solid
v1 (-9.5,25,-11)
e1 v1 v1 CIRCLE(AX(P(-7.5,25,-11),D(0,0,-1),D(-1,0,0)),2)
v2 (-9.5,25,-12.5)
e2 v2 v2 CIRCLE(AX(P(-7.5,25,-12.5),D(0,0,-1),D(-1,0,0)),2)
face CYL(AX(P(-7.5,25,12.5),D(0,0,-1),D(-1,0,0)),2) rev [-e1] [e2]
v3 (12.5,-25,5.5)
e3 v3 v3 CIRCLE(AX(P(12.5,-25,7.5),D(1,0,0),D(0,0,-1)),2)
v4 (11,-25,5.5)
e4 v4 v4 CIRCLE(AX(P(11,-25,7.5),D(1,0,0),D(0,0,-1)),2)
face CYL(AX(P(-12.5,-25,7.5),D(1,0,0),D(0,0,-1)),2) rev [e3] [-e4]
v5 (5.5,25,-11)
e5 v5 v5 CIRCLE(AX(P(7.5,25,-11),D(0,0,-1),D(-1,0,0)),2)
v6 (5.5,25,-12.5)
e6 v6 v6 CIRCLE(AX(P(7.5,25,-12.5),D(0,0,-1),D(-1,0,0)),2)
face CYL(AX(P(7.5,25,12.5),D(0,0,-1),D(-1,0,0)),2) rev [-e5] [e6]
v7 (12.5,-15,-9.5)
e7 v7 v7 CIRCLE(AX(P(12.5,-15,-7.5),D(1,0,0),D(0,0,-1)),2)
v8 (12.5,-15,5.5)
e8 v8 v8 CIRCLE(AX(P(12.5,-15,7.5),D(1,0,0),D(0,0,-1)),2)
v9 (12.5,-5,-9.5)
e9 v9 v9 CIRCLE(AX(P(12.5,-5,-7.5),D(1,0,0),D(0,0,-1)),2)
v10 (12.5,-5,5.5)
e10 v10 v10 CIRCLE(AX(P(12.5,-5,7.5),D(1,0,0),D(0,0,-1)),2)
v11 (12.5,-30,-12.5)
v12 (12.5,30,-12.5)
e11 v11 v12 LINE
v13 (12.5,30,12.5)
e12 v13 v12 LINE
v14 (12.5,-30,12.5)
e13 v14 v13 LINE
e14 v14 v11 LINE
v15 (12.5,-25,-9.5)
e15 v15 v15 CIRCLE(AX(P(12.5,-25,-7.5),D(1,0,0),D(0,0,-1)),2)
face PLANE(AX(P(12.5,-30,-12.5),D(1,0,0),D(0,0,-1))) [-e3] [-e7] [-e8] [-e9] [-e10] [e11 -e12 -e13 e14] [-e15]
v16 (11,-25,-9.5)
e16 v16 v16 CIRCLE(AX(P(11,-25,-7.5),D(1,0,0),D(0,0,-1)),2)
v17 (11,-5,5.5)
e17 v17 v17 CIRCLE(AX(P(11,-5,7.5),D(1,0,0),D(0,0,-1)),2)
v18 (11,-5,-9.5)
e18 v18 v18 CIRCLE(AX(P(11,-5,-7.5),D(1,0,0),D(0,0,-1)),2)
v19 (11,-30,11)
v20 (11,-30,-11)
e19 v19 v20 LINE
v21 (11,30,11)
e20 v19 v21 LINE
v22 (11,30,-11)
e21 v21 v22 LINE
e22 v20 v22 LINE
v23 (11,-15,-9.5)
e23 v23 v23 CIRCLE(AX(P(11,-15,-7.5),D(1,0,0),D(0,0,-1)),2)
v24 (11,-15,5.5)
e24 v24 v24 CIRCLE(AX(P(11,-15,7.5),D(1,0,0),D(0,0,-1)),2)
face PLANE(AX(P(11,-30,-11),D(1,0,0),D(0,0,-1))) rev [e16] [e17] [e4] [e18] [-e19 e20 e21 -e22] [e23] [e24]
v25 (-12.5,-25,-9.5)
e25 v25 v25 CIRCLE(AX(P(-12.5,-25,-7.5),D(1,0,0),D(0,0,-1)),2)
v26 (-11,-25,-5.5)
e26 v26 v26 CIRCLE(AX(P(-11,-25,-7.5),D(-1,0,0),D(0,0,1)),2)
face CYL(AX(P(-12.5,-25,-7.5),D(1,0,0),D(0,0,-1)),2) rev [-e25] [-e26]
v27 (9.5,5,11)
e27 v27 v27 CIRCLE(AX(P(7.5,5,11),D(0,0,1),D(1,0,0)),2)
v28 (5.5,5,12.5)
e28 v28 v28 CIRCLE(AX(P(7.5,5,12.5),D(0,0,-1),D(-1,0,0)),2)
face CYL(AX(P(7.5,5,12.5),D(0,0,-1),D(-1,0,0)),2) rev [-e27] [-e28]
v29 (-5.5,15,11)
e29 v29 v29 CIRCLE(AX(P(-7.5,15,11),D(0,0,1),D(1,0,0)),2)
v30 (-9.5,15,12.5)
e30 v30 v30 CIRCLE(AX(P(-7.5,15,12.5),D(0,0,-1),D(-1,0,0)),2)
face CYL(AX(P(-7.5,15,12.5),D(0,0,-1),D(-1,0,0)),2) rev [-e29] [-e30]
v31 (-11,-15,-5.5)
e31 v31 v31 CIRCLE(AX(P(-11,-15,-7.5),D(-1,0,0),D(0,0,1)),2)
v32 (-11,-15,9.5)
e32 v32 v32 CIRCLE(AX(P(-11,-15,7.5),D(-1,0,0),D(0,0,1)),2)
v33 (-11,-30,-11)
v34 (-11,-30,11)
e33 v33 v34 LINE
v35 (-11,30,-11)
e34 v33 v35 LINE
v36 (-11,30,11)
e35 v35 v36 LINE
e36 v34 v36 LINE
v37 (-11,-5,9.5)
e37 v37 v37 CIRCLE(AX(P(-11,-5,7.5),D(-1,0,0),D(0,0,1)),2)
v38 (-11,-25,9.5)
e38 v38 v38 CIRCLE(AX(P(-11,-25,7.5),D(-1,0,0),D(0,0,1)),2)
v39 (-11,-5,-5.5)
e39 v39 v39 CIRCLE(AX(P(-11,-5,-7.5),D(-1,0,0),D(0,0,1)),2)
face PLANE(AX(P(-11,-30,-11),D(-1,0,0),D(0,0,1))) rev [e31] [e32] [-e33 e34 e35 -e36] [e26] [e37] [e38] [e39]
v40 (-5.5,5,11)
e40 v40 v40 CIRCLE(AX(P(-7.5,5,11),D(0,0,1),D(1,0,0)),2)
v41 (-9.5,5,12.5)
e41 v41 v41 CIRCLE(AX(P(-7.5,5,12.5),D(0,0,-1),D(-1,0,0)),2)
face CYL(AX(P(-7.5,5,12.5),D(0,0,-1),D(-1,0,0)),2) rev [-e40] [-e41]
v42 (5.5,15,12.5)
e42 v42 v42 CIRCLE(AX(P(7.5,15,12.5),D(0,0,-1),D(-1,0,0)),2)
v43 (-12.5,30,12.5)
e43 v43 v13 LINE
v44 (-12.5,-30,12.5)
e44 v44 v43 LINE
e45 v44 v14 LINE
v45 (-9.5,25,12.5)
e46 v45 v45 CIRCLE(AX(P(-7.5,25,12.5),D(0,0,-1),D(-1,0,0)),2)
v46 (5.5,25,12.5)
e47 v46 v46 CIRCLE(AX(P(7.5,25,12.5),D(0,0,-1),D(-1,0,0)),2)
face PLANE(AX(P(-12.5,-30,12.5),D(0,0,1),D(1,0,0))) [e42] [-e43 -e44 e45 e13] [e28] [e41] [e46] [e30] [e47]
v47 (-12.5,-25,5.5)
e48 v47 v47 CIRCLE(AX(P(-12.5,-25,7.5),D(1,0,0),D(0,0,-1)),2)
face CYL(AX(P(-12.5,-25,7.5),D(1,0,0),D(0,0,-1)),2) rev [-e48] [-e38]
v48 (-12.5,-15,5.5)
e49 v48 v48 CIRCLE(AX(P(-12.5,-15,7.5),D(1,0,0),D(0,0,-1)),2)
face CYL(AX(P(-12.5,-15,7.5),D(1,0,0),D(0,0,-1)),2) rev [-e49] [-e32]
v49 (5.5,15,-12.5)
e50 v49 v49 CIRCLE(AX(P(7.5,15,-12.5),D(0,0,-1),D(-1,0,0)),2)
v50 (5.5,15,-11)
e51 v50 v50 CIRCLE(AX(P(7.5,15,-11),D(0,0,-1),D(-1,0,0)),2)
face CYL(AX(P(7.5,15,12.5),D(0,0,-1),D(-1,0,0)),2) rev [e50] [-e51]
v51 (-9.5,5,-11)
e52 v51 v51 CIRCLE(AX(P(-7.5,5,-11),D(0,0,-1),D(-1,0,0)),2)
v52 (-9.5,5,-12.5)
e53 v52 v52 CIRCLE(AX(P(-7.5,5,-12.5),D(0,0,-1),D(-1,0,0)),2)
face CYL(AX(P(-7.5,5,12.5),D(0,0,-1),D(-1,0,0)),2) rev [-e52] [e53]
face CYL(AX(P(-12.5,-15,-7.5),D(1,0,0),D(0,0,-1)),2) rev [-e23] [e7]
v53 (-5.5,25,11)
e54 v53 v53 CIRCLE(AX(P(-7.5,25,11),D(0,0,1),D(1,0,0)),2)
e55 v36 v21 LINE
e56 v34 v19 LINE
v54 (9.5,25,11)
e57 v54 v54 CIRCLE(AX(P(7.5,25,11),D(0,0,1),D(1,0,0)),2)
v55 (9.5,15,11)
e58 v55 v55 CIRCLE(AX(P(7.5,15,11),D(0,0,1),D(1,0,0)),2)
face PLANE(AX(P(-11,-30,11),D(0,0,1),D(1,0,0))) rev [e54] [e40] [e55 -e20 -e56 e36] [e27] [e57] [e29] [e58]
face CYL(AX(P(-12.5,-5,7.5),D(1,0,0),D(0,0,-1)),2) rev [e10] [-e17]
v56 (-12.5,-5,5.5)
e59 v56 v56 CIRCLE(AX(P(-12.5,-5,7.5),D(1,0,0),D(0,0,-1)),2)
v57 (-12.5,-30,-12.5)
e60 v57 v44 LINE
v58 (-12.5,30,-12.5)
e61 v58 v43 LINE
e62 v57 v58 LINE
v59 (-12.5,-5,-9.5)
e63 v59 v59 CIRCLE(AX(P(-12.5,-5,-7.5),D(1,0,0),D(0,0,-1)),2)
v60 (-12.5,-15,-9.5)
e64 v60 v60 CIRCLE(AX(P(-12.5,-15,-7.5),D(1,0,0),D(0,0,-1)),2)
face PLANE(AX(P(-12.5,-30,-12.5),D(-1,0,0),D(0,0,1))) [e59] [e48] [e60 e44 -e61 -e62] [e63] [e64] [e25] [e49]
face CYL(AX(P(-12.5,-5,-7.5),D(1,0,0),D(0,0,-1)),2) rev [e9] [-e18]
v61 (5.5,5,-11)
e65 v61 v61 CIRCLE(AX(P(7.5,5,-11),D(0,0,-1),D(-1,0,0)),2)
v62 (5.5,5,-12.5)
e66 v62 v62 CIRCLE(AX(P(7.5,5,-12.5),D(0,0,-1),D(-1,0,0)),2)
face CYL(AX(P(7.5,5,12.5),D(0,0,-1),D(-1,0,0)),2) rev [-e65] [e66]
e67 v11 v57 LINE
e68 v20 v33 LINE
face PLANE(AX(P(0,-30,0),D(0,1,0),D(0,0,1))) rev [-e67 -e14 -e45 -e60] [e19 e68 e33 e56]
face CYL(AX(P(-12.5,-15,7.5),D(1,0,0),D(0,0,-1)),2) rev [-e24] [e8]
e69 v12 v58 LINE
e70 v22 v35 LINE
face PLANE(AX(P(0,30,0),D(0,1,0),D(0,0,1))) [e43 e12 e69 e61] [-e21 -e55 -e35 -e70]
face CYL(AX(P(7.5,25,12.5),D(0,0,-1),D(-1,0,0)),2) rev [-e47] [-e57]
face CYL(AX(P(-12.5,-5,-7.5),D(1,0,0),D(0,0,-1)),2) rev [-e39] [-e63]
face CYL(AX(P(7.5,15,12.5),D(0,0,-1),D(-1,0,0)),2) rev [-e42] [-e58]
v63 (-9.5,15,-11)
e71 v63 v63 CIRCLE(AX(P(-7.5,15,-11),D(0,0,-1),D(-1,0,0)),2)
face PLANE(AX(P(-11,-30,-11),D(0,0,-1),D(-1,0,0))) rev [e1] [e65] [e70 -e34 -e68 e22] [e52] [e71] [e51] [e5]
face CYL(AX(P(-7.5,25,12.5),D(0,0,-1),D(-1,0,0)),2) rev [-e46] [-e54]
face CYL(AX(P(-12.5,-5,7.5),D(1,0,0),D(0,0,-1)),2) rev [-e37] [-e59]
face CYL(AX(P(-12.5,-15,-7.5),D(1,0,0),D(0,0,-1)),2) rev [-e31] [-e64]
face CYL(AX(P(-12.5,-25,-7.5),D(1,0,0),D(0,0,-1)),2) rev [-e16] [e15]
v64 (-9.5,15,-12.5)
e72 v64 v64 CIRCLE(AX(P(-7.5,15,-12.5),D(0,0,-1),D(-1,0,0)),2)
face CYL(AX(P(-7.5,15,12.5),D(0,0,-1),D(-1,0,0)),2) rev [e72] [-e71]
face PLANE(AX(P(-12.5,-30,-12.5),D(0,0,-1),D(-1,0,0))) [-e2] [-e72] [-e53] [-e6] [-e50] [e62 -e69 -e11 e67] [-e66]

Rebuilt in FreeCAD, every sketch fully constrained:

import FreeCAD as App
import Part
import Sketcher

V = App.Vector
Q = App.Units.Quantity


def add_polygon(sketch, points):
    """Adds a closed chain of lines whose ends are joined by coincident constraints."""
    first, n = sketch.GeometryCount, len(points)
    for a, b in zip(points, points[1:] + points[:1]):
        sketch.addGeometry(Part.LineSegment(App.Vector(*a, 0), App.Vector(*b, 0)), False)
    for i in range(n):
        sketch.addConstraint(Sketcher.Constraint("Coincident", first + i, 2, first + (i + 1) % n, 1))

doc = App.newDocument("Part")
body = doc.addObject("PartDesign::Body", "Body")

sketch1 = doc.addObject("Sketcher::SketchObject", "Sketch")
body.addObject(sketch1)
sketch1.AttachmentSupport = (doc.XZ_Plane, [""])
sketch1.MapMode = "FlatFace"
add_polygon(sketch1, [(-12, -12), (-12, 12), (12, 12), (12, -12)])
add_polygon(sketch1, [(11, 11), (-11, 11), (-11, -11), (11, -11)])
sketch1.addConstraint(Sketcher.Constraint("Vertical", 0))
sketch1.addConstraint(Sketcher.Constraint("Horizontal", 1))
sketch1.addConstraint(Sketcher.Constraint("Vertical", 2))
sketch1.addConstraint(Sketcher.Constraint("Horizontal", 3))
sketch1.addConstraint(Sketcher.Constraint("Horizontal", 4))
sketch1.addConstraint(Sketcher.Constraint("Vertical", 5))
sketch1.addConstraint(Sketcher.Constraint("Horizontal", 6))
sketch1.addConstraint(Sketcher.Constraint("Vertical", 7))
sketch1.addConstraint(Sketcher.Constraint("Symmetric", 0, 2, 2, 2, -1, 1))
sketch1.addConstraint(Sketcher.Constraint("Symmetric", 4, 2, 6, 2, -1, 1))
sketch1.addConstraint(Sketcher.Constraint("Equal", 3, 0))
sketch1.addConstraint(Sketcher.Constraint("Equal", 6, 5))
sketch1.addConstraint(Sketcher.Constraint("DistanceX", 1, 1, 1, 2, Q("25 mm")))
sketch1.addConstraint(Sketcher.Constraint("DistanceX", 4, 2, 4, 1, Q("22 mm")))
pad1 = doc.addObject("PartDesign::Pad", "Pad")
body.addObject(pad1)
pad1.Profile = sketch1
pad1.Type = "TwoLengths"
pad1.Length = 30
pad1.Length2 = 30
pad1.Reversed = True

sketch2 = doc.addObject("Sketcher::SketchObject", "Sketch001")
body.addObject(sketch2)
sketch2.AttachmentSupport = (doc.YZ_Plane, [""])
sketch2.MapMode = "FlatFace"
sketch2.AttachmentOffset = App.Placement(V(0, 0, 12.5), App.Rotation())
sketch2.addGeometry(Part.Circle(V(-25, -7.5, 0), V(0, 0, 1), 2), False)
sketch2.addGeometry(Part.Circle(V(-5, -7.5, 0), V(0, 0, 1), 2), False)
sketch2.addGeometry(Part.Circle(V(-25, 7.5, 0), V(0, 0, 1), 2), False)
sketch2.addGeometry(Part.Circle(V(-5, 7.5, 0), V(0, 0, 1), 2), False)
sketch2.addGeometry(Part.Circle(V(-15, -7.5, 0), V(0, 0, 1), 2), False)
sketch2.addGeometry(Part.Circle(V(-15, 7.5, 0), V(0, 0, 1), 2), False)
sketch2.addConstraint(Sketcher.Constraint("Equal", 0, 1))
sketch2.addConstraint(Sketcher.Constraint("Equal", 1, 2))
sketch2.addConstraint(Sketcher.Constraint("Equal", 2, 3))
sketch2.addConstraint(Sketcher.Constraint("Equal", 3, 4))
sketch2.addConstraint(Sketcher.Constraint("Equal", 4, 5))
sketch2.addConstraint(Sketcher.Constraint("Symmetric", 0, 3, 2, 3, -1))
sketch2.addConstraint(Sketcher.Constraint("Symmetric", 1, 3, 3, 3, -1))
sketch2.addConstraint(Sketcher.Constraint("Symmetric", 4, 3, 5, 3, -1))
sketch2.addConstraint(Sketcher.Constraint("Horizontal", 0, 3, 1, 3))
sketch2.addConstraint(Sketcher.Constraint("Horizontal", 1, 3, 4, 3))
sketch2.addConstraint(Sketcher.Constraint("Diameter", 0, Q("4 mm")))
sketch2.addConstraint(Sketcher.Constraint("DistanceX", 0, 3, -1, 1, Q("25 mm")))
sketch2.addConstraint(Sketcher.Constraint("DistanceX", 1, 3, -1, 1, Q("5 mm")))
sketch2.addConstraint(Sketcher.Constraint("DistanceX", 4, 3, -1, 1, Q("15 mm")))
sketch2.addConstraint(Sketcher.Constraint("DistanceY", 0, 3, 2, 3, Q("15 mm")))
pocket1 = doc.addObject("PartDesign::Pocket", "Pocket")
body.addObject(pocket1)
pocket1.Profile = sketch2
pocket1.Length = 25

sketch3 = doc.addObject("Sketcher::SketchObject", "Sketch002")
body.addObject(sketch3)
sketch3.AttachmentSupport = (doc.XY_Plane, [""])
sketch3.MapMode = "FlatFace"
sketch3.AttachmentOffset = App.Placement(V(0, 0, -12.5), App.Rotation())
sketch3.addGeometry(Part.Circle(V(-7.5, 25, 0), V(0, 0, 1), 2), False)
sketch3.addGeometry(Part.Circle(V(-7.5, 15, 0), V(0, 0, 1), 2), False)
sketch3.addGeometry(Part.Circle(V(7.5, 25, 0), V(0, 0, 1), 2), False)
sketch3.addGeometry(Part.Circle(V(7.5, 15, 0), V(0, 0, 1), 2), False)
sketch3.addGeometry(Part.Circle(V(7.5, 5, 0), V(0, 0, 1), 2), False)
sketch3.addGeometry(Part.Circle(V(-7.5, 5, 0), V(0, 0, 1), 2), False)
sketch3.addConstraint(Sketcher.Constraint("Equal", 0, 1))
sketch3.addConstraint(Sketcher.Constraint("Equal", 1, 2))
sketch3.addConstraint(Sketcher.Constraint("Equal", 2, 3))
sketch3.addConstraint(Sketcher.Constraint("Equal", 3, 4))
sketch3.addConstraint(Sketcher.Constraint("Equal", 4, 5))
sketch3.addConstraint(Sketcher.Constraint("Symmetric", 0, 3, 2, 3, -2))
sketch3.addConstraint(Sketcher.Constraint("Symmetric", 1, 3, 3, 3, -2))
sketch3.addConstraint(Sketcher.Constraint("Symmetric", 4, 3, 5, 3, -2))
sketch3.addConstraint(Sketcher.Constraint("Vertical", 0, 3, 1, 3))
sketch3.addConstraint(Sketcher.Constraint("Vertical", 3, 3, 4, 3))
sketch3.addConstraint(Sketcher.Constraint("Diameter", 0, Q("4 mm")))
sketch3.addConstraint(Sketcher.Constraint("DistanceY", -1, 1, 0, 3, Q("25 mm")))
sketch3.addConstraint(Sketcher.Constraint("DistanceY", -1, 1, 1, 3, Q("15 mm")))
sketch3.addConstraint(Sketcher.Constraint("DistanceY", -1, 1, 4, 3, Q("5 mm")))
sketch3.addConstraint(Sketcher.Constraint("DistanceX", 0, 3, 2, 3, Q("15 mm")))
pocket2 = doc.addObject("PartDesign::Pocket", "Pocket001")
body.addObject(pocket2)
pocket2.Profile = sketch3
pocket2.Length = 25
pocket2.Reversed = True

doc.recompute()
